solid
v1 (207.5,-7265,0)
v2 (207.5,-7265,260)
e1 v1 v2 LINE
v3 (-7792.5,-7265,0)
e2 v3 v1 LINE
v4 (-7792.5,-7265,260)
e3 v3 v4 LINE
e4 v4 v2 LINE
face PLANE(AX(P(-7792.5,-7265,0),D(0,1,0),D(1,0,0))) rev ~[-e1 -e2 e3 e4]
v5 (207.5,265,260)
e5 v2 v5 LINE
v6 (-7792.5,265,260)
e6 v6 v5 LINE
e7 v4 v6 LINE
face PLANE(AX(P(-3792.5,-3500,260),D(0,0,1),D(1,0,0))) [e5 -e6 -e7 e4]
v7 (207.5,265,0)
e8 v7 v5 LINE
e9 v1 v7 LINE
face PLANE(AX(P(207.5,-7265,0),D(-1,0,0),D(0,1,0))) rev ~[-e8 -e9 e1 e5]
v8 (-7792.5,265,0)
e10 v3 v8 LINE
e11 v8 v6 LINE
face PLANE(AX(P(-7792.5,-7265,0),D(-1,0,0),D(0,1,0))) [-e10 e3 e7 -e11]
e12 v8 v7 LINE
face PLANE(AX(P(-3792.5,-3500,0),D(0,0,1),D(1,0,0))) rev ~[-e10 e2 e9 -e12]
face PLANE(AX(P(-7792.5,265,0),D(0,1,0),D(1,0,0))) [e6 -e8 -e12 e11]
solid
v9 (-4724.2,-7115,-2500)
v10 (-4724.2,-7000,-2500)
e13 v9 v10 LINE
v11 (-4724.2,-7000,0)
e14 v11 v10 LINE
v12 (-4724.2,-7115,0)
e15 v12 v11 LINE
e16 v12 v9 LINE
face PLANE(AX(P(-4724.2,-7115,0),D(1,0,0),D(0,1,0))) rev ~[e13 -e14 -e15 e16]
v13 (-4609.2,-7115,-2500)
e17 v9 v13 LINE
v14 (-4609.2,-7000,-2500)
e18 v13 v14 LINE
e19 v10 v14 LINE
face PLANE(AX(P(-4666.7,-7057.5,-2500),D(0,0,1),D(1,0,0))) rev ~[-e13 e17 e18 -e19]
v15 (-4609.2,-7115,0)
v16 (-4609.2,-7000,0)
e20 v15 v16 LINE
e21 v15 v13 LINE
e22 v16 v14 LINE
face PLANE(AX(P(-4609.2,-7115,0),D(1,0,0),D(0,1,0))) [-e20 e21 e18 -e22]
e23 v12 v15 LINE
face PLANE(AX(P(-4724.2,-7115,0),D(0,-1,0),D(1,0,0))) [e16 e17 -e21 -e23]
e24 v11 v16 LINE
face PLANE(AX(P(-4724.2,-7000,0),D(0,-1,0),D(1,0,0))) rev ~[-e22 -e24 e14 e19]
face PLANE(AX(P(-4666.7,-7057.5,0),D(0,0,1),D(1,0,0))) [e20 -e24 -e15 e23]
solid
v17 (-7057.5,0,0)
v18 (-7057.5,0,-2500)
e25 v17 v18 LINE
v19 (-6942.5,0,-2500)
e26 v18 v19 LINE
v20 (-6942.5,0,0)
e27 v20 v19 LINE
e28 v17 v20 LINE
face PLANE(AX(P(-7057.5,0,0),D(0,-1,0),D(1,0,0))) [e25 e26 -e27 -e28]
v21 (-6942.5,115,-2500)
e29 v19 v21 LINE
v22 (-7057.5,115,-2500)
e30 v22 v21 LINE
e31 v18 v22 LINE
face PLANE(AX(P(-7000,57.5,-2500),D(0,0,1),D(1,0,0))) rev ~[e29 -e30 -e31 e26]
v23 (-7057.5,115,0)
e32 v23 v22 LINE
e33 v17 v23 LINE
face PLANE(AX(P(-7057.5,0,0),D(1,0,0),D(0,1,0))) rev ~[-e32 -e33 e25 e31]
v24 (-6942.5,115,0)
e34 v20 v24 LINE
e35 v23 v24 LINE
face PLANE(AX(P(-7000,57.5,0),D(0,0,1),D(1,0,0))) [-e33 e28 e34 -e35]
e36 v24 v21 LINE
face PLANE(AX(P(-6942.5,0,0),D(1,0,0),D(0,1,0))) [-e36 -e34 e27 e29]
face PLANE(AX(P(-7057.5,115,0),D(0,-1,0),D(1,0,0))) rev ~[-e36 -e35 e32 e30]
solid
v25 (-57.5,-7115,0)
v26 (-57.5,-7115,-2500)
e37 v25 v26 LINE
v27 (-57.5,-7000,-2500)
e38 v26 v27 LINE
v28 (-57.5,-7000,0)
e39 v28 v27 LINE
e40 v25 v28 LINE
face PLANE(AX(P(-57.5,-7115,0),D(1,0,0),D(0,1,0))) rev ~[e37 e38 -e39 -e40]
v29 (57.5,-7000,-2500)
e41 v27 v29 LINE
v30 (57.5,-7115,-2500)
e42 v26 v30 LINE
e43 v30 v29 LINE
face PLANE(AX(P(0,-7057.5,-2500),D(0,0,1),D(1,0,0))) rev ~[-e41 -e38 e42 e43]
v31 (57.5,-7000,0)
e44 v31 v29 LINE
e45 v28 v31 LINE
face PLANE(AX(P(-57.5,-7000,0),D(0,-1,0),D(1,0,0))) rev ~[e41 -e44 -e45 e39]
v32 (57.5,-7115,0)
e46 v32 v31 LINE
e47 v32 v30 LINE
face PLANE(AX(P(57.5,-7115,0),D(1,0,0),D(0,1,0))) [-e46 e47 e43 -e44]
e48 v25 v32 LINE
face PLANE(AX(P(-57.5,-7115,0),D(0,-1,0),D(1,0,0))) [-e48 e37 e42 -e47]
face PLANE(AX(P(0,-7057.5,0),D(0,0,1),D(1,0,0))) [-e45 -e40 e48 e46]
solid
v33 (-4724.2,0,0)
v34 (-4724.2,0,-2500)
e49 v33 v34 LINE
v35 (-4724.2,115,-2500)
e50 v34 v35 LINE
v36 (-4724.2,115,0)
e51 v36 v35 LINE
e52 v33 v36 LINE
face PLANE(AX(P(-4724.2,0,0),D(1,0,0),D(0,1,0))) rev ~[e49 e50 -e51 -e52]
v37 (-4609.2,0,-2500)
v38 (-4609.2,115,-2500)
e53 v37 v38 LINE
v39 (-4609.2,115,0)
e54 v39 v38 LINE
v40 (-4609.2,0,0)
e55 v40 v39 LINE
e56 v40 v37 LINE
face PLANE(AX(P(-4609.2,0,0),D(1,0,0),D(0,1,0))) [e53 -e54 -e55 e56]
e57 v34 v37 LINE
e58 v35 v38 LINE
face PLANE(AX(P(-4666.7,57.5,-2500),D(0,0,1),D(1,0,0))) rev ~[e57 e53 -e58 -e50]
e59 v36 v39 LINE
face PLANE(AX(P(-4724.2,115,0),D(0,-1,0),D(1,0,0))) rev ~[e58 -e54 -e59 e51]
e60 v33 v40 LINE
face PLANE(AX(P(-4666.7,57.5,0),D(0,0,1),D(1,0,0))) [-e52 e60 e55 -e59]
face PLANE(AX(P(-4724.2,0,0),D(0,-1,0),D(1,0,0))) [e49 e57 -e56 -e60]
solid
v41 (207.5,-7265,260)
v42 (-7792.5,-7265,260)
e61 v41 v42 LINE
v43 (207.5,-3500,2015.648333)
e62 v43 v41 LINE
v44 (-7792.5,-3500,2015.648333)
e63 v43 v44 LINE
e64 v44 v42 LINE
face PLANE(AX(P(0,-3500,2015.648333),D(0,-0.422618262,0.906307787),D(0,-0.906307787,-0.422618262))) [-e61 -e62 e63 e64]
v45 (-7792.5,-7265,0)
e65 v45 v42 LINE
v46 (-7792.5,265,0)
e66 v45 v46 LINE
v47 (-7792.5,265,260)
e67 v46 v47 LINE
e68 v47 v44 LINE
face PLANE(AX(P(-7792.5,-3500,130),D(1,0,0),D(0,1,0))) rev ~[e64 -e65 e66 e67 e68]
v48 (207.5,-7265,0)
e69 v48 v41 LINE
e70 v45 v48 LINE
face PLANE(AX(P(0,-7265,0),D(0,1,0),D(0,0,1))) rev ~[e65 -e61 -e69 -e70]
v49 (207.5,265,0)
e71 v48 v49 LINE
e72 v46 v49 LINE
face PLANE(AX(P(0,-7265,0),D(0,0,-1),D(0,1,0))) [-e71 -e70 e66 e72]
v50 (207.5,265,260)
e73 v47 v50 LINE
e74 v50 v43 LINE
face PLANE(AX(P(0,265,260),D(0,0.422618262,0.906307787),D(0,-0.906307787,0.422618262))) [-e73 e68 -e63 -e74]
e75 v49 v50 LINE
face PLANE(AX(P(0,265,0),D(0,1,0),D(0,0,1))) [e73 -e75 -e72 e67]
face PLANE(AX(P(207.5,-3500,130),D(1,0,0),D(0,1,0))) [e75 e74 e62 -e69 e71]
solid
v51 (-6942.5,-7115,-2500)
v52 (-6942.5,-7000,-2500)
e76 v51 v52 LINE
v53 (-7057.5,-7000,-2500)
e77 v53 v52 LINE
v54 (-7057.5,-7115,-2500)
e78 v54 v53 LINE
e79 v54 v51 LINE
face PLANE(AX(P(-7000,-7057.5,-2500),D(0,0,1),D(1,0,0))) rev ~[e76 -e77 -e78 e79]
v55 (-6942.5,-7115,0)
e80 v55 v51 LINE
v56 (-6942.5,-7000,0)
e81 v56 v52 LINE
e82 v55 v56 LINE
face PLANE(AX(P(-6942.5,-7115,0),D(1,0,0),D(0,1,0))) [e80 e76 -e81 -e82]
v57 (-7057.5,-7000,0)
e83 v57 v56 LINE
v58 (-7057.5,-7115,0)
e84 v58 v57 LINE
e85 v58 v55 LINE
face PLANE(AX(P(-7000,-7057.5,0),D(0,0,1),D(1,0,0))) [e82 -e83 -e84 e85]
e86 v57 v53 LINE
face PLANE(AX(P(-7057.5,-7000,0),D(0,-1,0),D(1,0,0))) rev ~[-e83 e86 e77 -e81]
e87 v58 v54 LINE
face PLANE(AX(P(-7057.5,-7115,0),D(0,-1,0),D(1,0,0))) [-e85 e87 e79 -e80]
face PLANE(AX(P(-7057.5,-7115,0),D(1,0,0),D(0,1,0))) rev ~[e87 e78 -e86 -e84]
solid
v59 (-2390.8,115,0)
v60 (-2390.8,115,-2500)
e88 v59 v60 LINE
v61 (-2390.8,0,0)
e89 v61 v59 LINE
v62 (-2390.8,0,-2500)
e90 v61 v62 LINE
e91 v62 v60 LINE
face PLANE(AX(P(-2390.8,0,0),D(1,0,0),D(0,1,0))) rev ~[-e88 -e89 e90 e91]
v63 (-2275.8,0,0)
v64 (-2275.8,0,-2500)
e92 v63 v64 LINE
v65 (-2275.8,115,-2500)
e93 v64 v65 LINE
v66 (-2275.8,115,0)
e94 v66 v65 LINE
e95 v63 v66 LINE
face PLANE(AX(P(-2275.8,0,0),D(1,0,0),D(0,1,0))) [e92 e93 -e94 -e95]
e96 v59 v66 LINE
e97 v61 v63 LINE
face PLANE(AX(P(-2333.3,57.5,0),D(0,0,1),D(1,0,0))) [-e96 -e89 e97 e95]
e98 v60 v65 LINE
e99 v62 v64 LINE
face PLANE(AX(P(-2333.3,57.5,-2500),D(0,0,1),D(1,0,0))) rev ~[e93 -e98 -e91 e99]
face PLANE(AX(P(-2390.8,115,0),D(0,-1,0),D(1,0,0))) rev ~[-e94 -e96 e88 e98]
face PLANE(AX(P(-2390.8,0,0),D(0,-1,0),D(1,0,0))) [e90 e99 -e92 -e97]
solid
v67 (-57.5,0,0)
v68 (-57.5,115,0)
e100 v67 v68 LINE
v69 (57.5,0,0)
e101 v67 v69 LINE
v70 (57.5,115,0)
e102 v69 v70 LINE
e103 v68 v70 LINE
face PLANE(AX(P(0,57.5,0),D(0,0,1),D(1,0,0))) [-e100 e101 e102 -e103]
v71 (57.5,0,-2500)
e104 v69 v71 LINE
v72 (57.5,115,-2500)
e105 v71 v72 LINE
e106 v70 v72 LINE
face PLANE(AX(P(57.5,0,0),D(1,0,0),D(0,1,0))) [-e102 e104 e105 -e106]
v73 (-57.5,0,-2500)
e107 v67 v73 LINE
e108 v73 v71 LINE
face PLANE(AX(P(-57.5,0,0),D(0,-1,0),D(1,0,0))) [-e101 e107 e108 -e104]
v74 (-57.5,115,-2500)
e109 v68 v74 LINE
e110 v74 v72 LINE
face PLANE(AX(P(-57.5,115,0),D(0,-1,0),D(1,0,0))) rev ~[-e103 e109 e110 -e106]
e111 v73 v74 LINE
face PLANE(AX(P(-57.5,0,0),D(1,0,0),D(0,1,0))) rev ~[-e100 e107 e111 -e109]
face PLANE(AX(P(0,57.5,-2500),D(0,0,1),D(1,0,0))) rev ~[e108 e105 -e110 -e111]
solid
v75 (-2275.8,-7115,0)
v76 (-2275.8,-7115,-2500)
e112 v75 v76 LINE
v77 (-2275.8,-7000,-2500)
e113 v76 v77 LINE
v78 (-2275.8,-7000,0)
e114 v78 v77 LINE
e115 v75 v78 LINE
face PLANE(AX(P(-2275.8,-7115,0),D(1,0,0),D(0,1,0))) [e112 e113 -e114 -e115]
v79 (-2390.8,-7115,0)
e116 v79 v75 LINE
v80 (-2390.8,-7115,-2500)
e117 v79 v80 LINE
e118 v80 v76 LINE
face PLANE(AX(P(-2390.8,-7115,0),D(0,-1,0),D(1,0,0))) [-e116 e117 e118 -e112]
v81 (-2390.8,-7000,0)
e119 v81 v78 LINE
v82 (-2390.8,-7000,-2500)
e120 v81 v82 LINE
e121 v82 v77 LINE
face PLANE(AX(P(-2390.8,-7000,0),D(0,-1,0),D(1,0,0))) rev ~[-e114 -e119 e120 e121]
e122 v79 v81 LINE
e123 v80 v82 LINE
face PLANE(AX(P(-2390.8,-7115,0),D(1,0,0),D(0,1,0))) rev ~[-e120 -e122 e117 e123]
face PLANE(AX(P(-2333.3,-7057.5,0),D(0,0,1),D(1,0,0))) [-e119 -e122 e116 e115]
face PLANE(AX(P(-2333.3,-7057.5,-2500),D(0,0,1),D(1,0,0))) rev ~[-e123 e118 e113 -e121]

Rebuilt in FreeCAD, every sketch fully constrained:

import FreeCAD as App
import Part
import Sketcher

V = App.Vector
Q = App.Units.Quantity

doc = App.newDocument("Part")
body = doc.addObject("PartDesign::Body", "Body")
body.AllowCompound = True

sketch1 = body.newObject("Sketcher::SketchObject", "Sketch")
sketch1.AttachmentSupport = (doc.getObject("XY_Plane"), [""])
sketch1.MapMode = "FlatFace"
sketch1.addGeometry(Part.LineSegment(V(-58, 115, 0), V(-58, 0, 0)), False)
sketch1.addGeometry(Part.LineSegment(V(-58, 0, 0), V(58, 0, 0)), False)
sketch1.addGeometry(Part.LineSegment(V(58, 0, 0), V(58, 115, 0)), False)
sketch1.addGeometry(Part.LineSegment(V(58, 115, 0), V(-58, 115, 0)), False)
sketch1.addGeometry(Part.LineSegment(V(-2391, 115, 0), V(-2391, 0, 0)), False)
sketch1.addGeometry(Part.LineSegment(V(-2391, 0, 0), V(-2276, 0, 0)), False)
sketch1.addGeometry(Part.LineSegment(V(-2276, 0, 0), V(-2276, 115, 0)), False)
sketch1.addGeometry(Part.LineSegment(V(-2276, 115, 0), V(-2391, 115, 0)), False)
sketch1.addGeometry(Part.LineSegment(V(-4724, 115, 0), V(-4724, 0, 0)), False)
sketch1.addGeometry(Part.LineSegment(V(-4724, 0, 0), V(-4609, 0, 0)), False)
sketch1.addGeometry(Part.LineSegment(V(-4609, 0, 0), V(-4609, 115, 0)), False)
sketch1.addGeometry(Part.LineSegment(V(-4609, 115, 0), V(-4724, 115, 0)), False)
sketch1.addGeometry(Part.LineSegment(V(-7058, 115, 0), V(-7058, 0, 0)), False)
sketch1.addGeometry(Part.LineSegment(V(-7058, 0, 0), V(-6942, 0, 0)), False)
sketch1.addGeometry(Part.LineSegment(V(-6942, 0, 0), V(-6942, 115, 0)), False)
sketch1.addGeometry(Part.LineSegment(V(-6942, 115, 0), V(-7058, 115, 0)), False)
sketch1.addGeometry(Part.LineSegment(V(-4724, -7000, 0), V(-4724, -7115, 0)), False)
sketch1.addGeometry(Part.LineSegment(V(-4724, -7115, 0), V(-4609, -7115, 0)), False)
sketch1.addGeometry(Part.LineSegment(V(-4609, -7115, 0), V(-4609, -7000, 0)), False)
sketch1.addGeometry(Part.LineSegment(V(-4609, -7000, 0), V(-4724, -7000, 0)), False)
sketch1.addGeometry(Part.LineSegment(V(-58, -7000, 0), V(-58, -7115, 0)), False)
sketch1.addGeometry(Part.LineSegment(V(-58, -7115, 0), V(58, -7115, 0)), False)
sketch1.addGeometry(Part.LineSegment(V(58, -7115, 0), V(58, -7000, 0)), False)
sketch1.addGeometry(Part.LineSegment(V(58, -7000, 0), V(-58, -7000, 0)), False)
sketch1.addGeometry(Part.LineSegment(V(-2391, -7000, 0), V(-2391, -7115, 0)), False)
sketch1.addGeometry(Part.LineSegment(V(-2391, -7115, 0), V(-2276, -7115, 0)), False)
sketch1.addGeometry(Part.LineSegment(V(-2276, -7115, 0), V(-2276, -7000, 0)), False)
sketch1.addGeometry(Part.LineSegment(V(-2276, -7000, 0), V(-2391, -7000, 0)), False)
sketch1.addGeometry(Part.LineSegment(V(-7058, -7000, 0), V(-7058, -7115, 0)), False)
sketch1.addGeometry(Part.LineSegment(V(-7058, -7115, 0), V(-6942, -7115, 0)), False)
sketch1.addGeometry(Part.LineSegment(V(-6942, -7115, 0), V(-6942, -7000, 0)), False)
sketch1.addGeometry(Part.LineSegment(V(-6942, -7000, 0), V(-7058, -7000, 0)), False)
sketch1.addConstraint(Sketcher.Constraint("Coincident", 0, 2, 1, 1))
sketch1.addConstraint(Sketcher.Constraint("Coincident", 1, 2, 2, 1))
sketch1.addConstraint(Sketcher.Constraint("Coincident", 2, 2, 3, 1))
sketch1.addConstraint(Sketcher.Constraint("Coincident", 3, 2, 0, 1))
sketch1.addConstraint(Sketcher.Constraint("Coincident", 4, 2, 5, 1))
sketch1.addConstraint(Sketcher.Constraint("Coincident", 5, 2, 6, 1))
sketch1.addConstraint(Sketcher.Constraint("Coincident", 6, 2, 7, 1))
sketch1.addConstraint(Sketcher.Constraint("Coincident", 7, 2, 4, 1))
sketch1.addConstraint(Sketcher.Constraint("Coincident", 8, 2, 9, 1))
sketch1.addConstraint(Sketcher.Constraint("Coincident", 9, 2, 10, 1))
sketch1.addConstraint(Sketcher.Constraint("Coincident", 10, 2, 11, 1))
sketch1.addConstraint(Sketcher.Constraint("Coincident", 11, 2, 8, 1))
sketch1.addConstraint(Sketcher.Constraint("Coincident", 12, 2, 13, 1))
sketch1.addConstraint(Sketcher.Constraint("Coincident", 13, 2, 14, 1))
sketch1.addConstraint(Sketcher.Constraint("Coincident", 14, 2, 15, 1))
sketch1.addConstraint(Sketcher.Constraint("Coincident", 15, 2, 12, 1))
sketch1.addConstraint(Sketcher.Constraint("Coincident", 16, 2, 17, 1))
sketch1.addConstraint(Sketcher.Constraint("Coincident", 17, 2, 18, 1))
sketch1.addConstraint(Sketcher.Constraint("Coincident", 18, 2, 19, 1))
sketch1.addConstraint(Sketcher.Constraint("Coincident", 19, 2, 16, 1))
sketch1.addConstraint(Sketcher.Constraint("Coincident", 20, 2, 21, 1))
sketch1.addConstraint(Sketcher.Constraint("Coincident", 21, 2, 22, 1))
sketch1.addConstraint(Sketcher.Constraint("Coincident", 22, 2, 23, 1))
sketch1.addConstraint(Sketcher.Constraint("Coincident", 23, 2, 20, 1))
sketch1.addConstraint(Sketcher.Constraint("Coincident", 24, 2, 25, 1))
sketch1.addConstraint(Sketcher.Constraint("Coincident", 25, 2, 26, 1))
sketch1.addConstraint(Sketcher.Constraint("Coincident", 26, 2, 27, 1))
sketch1.addConstraint(Sketcher.Constraint("Coincident", 27, 2, 24, 1))
sketch1.addConstraint(Sketcher.Constraint("Coincident", 28, 2, 29, 1))
sketch1.addConstraint(Sketcher.Constraint("Coincident", 29, 2, 30, 1))
sketch1.addConstraint(Sketcher.Constraint("Coincident", 30, 2, 31, 1))
sketch1.addConstraint(Sketcher.Constraint("Coincident", 31, 2, 28, 1))
sketch1.addConstraint(Sketcher.Constraint("Vertical", 0))
sketch1.addConstraint(Sketcher.Constraint("Horizontal", 1))
sketch1.addConstraint(Sketcher.Constraint("Vertical", 2))
sketch1.addConstraint(Sketcher.Constraint("Horizontal", 3))
sketch1.addConstraint(Sketcher.Constraint("Vertical", 4))
sketch1.addConstraint(Sketcher.Constraint("Horizontal", 5))
sketch1.addConstraint(Sketcher.Constraint("Vertical", 6))
sketch1.addConstraint(Sketcher.Constraint("Horizontal", 7))
sketch1.addConstraint(Sketcher.Constraint("Vertical", 8))
sketch1.addConstraint(Sketcher.Constraint("Horizontal", 9))
sketch1.addConstraint(Sketcher.Constraint("Vertical", 10))
sketch1.addConstraint(Sketcher.Constraint("Horizontal", 11))
sketch1.addConstraint(Sketcher.Constraint("Vertical", 12))
sketch1.addConstraint(Sketcher.Constraint("Horizontal", 13))
sketch1.addConstraint(Sketcher.Constraint("Vertical", 14))
sketch1.addConstraint(Sketcher.Constraint("Horizontal", 15))
sketch1.addConstraint(Sketcher.Constraint("Vertical", 16))
sketch1.addConstraint(Sketcher.Constraint("Horizontal", 17))
sketch1.addConstraint(Sketcher.Constraint("Vertical", 18))
sketch1.addConstraint(Sketcher.Constraint("Horizontal", 19))
sketch1.addConstraint(Sketcher.Constraint("Vertical", 20))
sketch1.addConstraint(Sketcher.Constraint("Horizontal", 21))
sketch1.addConstraint(Sketcher.Constraint("Vertical", 22))
sketch1.addConstraint(Sketcher.Constraint("Horizontal", 23))
sketch1.addConstraint(Sketcher.Constraint("Vertical", 24))
sketch1.addConstraint(Sketcher.Constraint("Horizontal", 25))
sketch1.addConstraint(Sketcher.Constraint("Vertical", 26))
sketch1.addConstraint(Sketcher.Constraint("Horizontal", 27))
sketch1.addConstraint(Sketcher.Constraint("Vertical", 28))
sketch1.addConstraint(Sketcher.Constraint("Horizontal", 29))
sketch1.addConstraint(Sketcher.Constraint("Vertical", 30))
sketch1.addConstraint(Sketcher.Constraint("Horizontal", 31))
sketch1.addConstraint(Sketcher.Constraint("Symmetric", 0, 2, 1, 2, -1, 1))
sketch1.addConstraint(Sketcher.Constraint("PointOnObject", 4, 2, -1))
sketch1.addConstraint(Sketcher.Constraint("PointOnObject", 8, 2, -1))
sketch1.addConstraint(Sketcher.Constraint("PointOnObject", 12, 2, -1))
sketch1.addConstraint(Sketcher.Constraint("Horizontal", 3, 2, 6, 2))
sketch1.addConstraint(Sketcher.Constraint("Horizontal", 7, 2, 10, 2))
sketch1.addConstraint(Sketcher.Constraint("Horizontal", 11, 2, 14, 2))
sketch1.addConstraint(Sketcher.Constraint("Horizontal", 17, 2, 20, 2))
sketch1.addConstraint(Sketcher.Constraint("Horizontal", 19, 2, 22, 2))
sketch1.addConstraint(Sketcher.Constraint("Horizontal", 21, 2, 24, 2))
sketch1.addConstraint(Sketcher.Constraint("Horizontal", 23, 2, 26, 2))
sketch1.addConstraint(Sketcher.Constraint("Horizontal", 25, 2, 28, 2))
sketch1.addConstraint(Sketcher.Constraint("Horizontal", 27, 2, 30, 2))
sketch1.addConstraint(Sketcher.Constraint("Vertical", 11, 2, 16, 2))
sketch1.addConstraint(Sketcher.Constraint("Vertical", 10, 2, 17, 2))
sketch1.addConstraint(Sketcher.Constraint("Vertical", 3, 2, 20, 2))
sketch1.addConstraint(Sketcher.Constraint("Vertical", 2, 2, 21, 2))
sketch1.addConstraint(Sketcher.Constraint("Vertical", 7, 2, 24, 2))
sketch1.addConstraint(Sketcher.Constraint("Vertical", 6, 2, 25, 2))
sketch1.addConstraint(Sketcher.Constraint("Vertical", 15, 2, 28, 2))
sketch1.addConstraint(Sketcher.Constraint("Vertical", 14, 2, 29, 2))
sketch1.addConstraint(Sketcher.Constraint("Equal", 3, 5))
sketch1.addConstraint(Sketcher.Constraint("Equal", 7, 9))
sketch1.addConstraint(Sketcher.Constraint("Equal", 11, 13))
sketch1.addConstraint(Sketcher.Constraint("Equal", 31, 0))
sketch1.addConstraint(Sketcher.Constraint("Equal", 14, 16))
sketch1.addConstraint(Sketcher.Constraint("DistanceX", 1, 1, 1, 2, 115.0))
sketch1.addConstraint(Sketcher.Constraint("DistanceY", 16, 2, -1, 1, 7115.0))
sketch1.addConstraint(Sketcher.Constraint("DistanceX", 4, 2, -1, 1, 2390.8))
sketch1.addConstraint(Sketcher.Constraint("DistanceX", 8, 2, -1, 1, 4724.2))
sketch1.addConstraint(Sketcher.Constraint("DistanceX", 12, 2, -1, 1, 7057.5))
pad1 = body.newObject("PartDesign::Pad", "Pad")
pad1.Profile = sketch1
pad1.Length = 2500
pad1.Reversed = True
body2 = doc.addObject("PartDesign::Body", "Body001")

sketch2 = body2.newObject("Sketcher::SketchObject", "Sketch001")
sketch2.AttachmentSupport = (doc.getObject("XY_Plane001"), [""])
sketch2.MapMode = "FlatFace"
sketch2.addGeometry(Part.LineSegment(V(-7792, 265, 0), V(-7792, -7265, 0)), False)
sketch2.addGeometry(Part.LineSegment(V(-7792, -7265, 0), V(208, -7265, 0)), False)
sketch2.addGeometry(Part.LineSegment(V(208, -7265, 0), V(208, 265, 0)), False)
sketch2.addGeometry(Part.LineSegment(V(208, 265, 0), V(-7792, 265, 0)), False)
sketch2.addConstraint(Sketcher.Constraint("Coincident", 0, 2, 1, 1))
sketch2.addConstraint(Sketcher.Constraint("Coincident", 1, 2, 2, 1))
sketch2.addConstraint(Sketcher.Constraint("Coincident", 2, 2, 3, 1))
sketch2.addConstraint(Sketcher.Constraint("Coincident", 3, 2, 0, 1))
sketch2.addConstraint(Sketcher.Constraint("Vertical", 0))
sketch2.addConstraint(Sketcher.Constraint("Horizontal", 1))
sketch2.addConstraint(Sketcher.Constraint("Vertical", 2))
sketch2.addConstraint(Sketcher.Constraint("Horizontal", 3))
sketch2.addConstraint(Sketcher.Constraint("DistanceX", 1, 1, 1, 2, 8000.0))
sketch2.addConstraint(Sketcher.Constraint("DistanceY", 0, 2, 0, 1, 7530.0))
sketch2.addConstraint(Sketcher.Constraint("DistanceY", 0, 2, -1, 1, 7265.0))
sketch2.addConstraint(Sketcher.Constraint("DistanceX", 0, 2, -1, 1, 7792.5))
pad2 = body2.newObject("PartDesign::Pad", "Pad001")
pad2.Profile = sketch2
pad2.Length = 260
body3 = doc.addObject("PartDesign::Body", "Body002")

sketch3 = body3.newObject("Sketcher::SketchObject", "Sketch002")
sketch3.AttachmentSupport = (doc.getObject("YZ_Plane002"), [""])
sketch3.MapMode = "FlatFace"
sketch3.addGeometry(Part.LineSegment(V(-7265, 260, 0), V(-7265, 0, 0)), False)
sketch3.addGeometry(Part.LineSegment(V(-7265, 0, 0), V(265, 0, 0)), False)
sketch3.addGeometry(Part.LineSegment(V(265, 0, 0), V(265, 260, 0)), False)
sketch3.addGeometry(Part.LineSegment(V(265, 260, 0), V(-3500, 2016, 0)), False)
sketch3.addGeometry(Part.LineSegment(V(-3500, 2016, 0), V(-7265, 260, 0)), False)
sketch3.addConstraint(Sketcher.Constraint("Coincident", 0, 2, 1, 1))
sketch3.addConstraint(Sketcher.Constraint("Coincident", 1, 2, 2, 1))
sketch3.addConstraint(Sketcher.Constraint("Coincident", 2, 2, 3, 1))
sketch3.addConstraint(Sketcher.Constraint("Coincident", 3, 2, 4, 1))
sketch3.addConstraint(Sketcher.Constraint("Coincident", 4, 2, 0, 1))
sketch3.addConstraint(Sketcher.Constraint("Vertical", 0))
sketch3.addConstraint(Sketcher.Constraint("Horizontal", 1))
sketch3.addConstraint(Sketcher.Constraint("Vertical", 2))
sketch3.addConstraint(Sketcher.Constraint("PointOnObject", 0, 2, -1))
sketch3.addConstraint(Sketcher.Constraint("Horizontal", 2, 2, 4, 2))
sketch3.addConstraint(Sketcher.Constraint("Equal", 3, 4))
sketch3.addConstraint(Sketcher.Constraint("DistanceX", 1, 1, 1, 2, 7530.0))
sketch3.addConstraint(Sketcher.Constraint("DistanceY", 0, 2, 0, 1, 260.0))
sketch3.addConstraint(Sketcher.Constraint("Angle", 3, Q("155 deg")))
sketch3.addConstraint(Sketcher.Constraint("DistanceX", 0, 2, -1, 1, 7265.0))
pad3 = body3.newObject("PartDesign::Pad", "Pad002")
pad3.Profile = sketch3
pad3.Type = "TwoLengths"
pad3.Length = 207.5
pad3.Length2 = 7792.5

doc.recompute()
